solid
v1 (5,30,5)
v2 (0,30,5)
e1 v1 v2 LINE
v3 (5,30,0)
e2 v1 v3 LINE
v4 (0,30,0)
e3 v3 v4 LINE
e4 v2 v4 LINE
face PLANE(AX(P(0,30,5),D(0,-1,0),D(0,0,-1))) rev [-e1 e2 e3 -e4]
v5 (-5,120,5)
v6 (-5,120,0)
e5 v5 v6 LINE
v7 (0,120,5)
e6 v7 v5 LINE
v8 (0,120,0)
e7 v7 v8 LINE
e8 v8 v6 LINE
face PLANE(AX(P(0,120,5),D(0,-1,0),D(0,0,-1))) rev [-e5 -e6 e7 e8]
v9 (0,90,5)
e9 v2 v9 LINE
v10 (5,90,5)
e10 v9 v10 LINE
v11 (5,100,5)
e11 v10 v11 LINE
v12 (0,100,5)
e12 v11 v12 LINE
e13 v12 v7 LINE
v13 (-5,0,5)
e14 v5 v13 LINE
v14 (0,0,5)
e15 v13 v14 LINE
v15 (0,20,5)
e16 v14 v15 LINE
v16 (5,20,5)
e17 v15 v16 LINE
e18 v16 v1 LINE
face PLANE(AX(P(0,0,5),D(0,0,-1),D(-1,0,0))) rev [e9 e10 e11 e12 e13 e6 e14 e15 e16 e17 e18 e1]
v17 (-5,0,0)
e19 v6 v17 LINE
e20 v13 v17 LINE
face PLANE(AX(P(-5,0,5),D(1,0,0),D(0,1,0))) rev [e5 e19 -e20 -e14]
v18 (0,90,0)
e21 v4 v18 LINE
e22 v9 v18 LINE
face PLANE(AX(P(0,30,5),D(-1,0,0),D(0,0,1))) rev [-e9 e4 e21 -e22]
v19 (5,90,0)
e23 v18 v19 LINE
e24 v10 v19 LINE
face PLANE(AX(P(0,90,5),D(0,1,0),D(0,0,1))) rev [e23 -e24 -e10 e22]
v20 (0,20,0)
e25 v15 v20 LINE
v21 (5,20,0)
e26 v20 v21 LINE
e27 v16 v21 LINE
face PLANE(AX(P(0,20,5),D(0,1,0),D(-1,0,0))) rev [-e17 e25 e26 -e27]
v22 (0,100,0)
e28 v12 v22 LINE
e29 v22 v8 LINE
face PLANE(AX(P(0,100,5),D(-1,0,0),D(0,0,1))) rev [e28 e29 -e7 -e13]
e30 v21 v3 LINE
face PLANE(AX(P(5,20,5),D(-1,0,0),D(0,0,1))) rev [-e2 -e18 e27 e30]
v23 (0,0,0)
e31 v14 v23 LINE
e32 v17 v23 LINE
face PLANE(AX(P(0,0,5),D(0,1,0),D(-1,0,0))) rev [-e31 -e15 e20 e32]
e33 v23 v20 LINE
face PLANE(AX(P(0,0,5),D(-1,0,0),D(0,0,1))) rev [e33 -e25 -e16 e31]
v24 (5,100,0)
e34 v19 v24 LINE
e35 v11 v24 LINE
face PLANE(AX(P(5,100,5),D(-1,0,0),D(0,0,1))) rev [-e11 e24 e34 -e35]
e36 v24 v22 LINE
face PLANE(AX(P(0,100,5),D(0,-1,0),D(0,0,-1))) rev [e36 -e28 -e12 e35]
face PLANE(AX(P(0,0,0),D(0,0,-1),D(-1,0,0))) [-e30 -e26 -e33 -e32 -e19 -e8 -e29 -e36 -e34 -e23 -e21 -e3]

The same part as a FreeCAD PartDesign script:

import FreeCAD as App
import Part
import Sketcher


def add_polygon(sketch, points):
    """Adds a closed chain of lines whose ends are joined by coincident constraints."""
    first, n = sketch.GeometryCount, len(points)
    for a, b in zip(points, points[1:] + points[:1]):
        sketch.addGeometry(Part.LineSegment(App.Vector(*a, 0), App.Vector(*b, 0)), False)
    for i in range(n):
        sketch.addConstraint(Sketcher.Constraint("Coincident", first + i, 2, first + (i + 1) % n, 1))

doc = App.newDocument("Part")
body = doc.addObject("PartDesign::Body", "Body")

sketch1 = body.newObject("Sketcher::SketchObject", "Sketch")
sketch1.AttachmentSupport = (doc.getObject("XY_Plane"), [""])
sketch1.MapMode = "FlatFace"
add_polygon(sketch1, [(-5, 0), (0, 0), (0, 20), (5, 20), (5, 30), (0, 30), (0, 90), (5, 90), (5, 100), (0, 100), (0, 120), (-5, 120)])
sketch1.addConstraint([
    Sketcher.Constraint("Horizontal", 0),
    Sketcher.Constraint("Vertical", 1),
    Sketcher.Constraint("Horizontal", 2),
    Sketcher.Constraint("Vertical", 3),
    Sketcher.Constraint("Horizontal", 4),
    Sketcher.Constraint("Vertical", 5),
    Sketcher.Constraint("Horizontal", 6),
    Sketcher.Constraint("Vertical", 7),
    Sketcher.Constraint("Horizontal", 8),
    Sketcher.Constraint("Vertical", 9),
    Sketcher.Constraint("Horizontal", 10),
    Sketcher.Constraint("Vertical", 11),
    Sketcher.Constraint("Coincident", 0, 2, -1, 1),
    Sketcher.Constraint("PointOnObject", 4, 2, -2),
    Sketcher.Constraint("PointOnObject", 8, 2, -2),
    Sketcher.Constraint("Vertical", 3, 2, 6, 2),
    Sketcher.Constraint("Equal", 0, 2),
    Sketcher.Constraint("Equal", 3, 7),
    Sketcher.Constraint("Equal", 1, 9),
    Sketcher.Constraint("DistanceX", 0, 1, 0, 2, 5.0),
    Sketcher.Constraint("DistanceY", 1, 1, 1, 2, 20.0),
    Sketcher.Constraint("DistanceY", 3, 1, 3, 2, 10.0),
    Sketcher.Constraint("DistanceY", 5, 1, 5, 2, 60.0),
])
pad1 = body.newObject("PartDesign::Pad", "Pad")
pad1.Profile = sketch1
pad1.Length = 5

doc.recompute()
